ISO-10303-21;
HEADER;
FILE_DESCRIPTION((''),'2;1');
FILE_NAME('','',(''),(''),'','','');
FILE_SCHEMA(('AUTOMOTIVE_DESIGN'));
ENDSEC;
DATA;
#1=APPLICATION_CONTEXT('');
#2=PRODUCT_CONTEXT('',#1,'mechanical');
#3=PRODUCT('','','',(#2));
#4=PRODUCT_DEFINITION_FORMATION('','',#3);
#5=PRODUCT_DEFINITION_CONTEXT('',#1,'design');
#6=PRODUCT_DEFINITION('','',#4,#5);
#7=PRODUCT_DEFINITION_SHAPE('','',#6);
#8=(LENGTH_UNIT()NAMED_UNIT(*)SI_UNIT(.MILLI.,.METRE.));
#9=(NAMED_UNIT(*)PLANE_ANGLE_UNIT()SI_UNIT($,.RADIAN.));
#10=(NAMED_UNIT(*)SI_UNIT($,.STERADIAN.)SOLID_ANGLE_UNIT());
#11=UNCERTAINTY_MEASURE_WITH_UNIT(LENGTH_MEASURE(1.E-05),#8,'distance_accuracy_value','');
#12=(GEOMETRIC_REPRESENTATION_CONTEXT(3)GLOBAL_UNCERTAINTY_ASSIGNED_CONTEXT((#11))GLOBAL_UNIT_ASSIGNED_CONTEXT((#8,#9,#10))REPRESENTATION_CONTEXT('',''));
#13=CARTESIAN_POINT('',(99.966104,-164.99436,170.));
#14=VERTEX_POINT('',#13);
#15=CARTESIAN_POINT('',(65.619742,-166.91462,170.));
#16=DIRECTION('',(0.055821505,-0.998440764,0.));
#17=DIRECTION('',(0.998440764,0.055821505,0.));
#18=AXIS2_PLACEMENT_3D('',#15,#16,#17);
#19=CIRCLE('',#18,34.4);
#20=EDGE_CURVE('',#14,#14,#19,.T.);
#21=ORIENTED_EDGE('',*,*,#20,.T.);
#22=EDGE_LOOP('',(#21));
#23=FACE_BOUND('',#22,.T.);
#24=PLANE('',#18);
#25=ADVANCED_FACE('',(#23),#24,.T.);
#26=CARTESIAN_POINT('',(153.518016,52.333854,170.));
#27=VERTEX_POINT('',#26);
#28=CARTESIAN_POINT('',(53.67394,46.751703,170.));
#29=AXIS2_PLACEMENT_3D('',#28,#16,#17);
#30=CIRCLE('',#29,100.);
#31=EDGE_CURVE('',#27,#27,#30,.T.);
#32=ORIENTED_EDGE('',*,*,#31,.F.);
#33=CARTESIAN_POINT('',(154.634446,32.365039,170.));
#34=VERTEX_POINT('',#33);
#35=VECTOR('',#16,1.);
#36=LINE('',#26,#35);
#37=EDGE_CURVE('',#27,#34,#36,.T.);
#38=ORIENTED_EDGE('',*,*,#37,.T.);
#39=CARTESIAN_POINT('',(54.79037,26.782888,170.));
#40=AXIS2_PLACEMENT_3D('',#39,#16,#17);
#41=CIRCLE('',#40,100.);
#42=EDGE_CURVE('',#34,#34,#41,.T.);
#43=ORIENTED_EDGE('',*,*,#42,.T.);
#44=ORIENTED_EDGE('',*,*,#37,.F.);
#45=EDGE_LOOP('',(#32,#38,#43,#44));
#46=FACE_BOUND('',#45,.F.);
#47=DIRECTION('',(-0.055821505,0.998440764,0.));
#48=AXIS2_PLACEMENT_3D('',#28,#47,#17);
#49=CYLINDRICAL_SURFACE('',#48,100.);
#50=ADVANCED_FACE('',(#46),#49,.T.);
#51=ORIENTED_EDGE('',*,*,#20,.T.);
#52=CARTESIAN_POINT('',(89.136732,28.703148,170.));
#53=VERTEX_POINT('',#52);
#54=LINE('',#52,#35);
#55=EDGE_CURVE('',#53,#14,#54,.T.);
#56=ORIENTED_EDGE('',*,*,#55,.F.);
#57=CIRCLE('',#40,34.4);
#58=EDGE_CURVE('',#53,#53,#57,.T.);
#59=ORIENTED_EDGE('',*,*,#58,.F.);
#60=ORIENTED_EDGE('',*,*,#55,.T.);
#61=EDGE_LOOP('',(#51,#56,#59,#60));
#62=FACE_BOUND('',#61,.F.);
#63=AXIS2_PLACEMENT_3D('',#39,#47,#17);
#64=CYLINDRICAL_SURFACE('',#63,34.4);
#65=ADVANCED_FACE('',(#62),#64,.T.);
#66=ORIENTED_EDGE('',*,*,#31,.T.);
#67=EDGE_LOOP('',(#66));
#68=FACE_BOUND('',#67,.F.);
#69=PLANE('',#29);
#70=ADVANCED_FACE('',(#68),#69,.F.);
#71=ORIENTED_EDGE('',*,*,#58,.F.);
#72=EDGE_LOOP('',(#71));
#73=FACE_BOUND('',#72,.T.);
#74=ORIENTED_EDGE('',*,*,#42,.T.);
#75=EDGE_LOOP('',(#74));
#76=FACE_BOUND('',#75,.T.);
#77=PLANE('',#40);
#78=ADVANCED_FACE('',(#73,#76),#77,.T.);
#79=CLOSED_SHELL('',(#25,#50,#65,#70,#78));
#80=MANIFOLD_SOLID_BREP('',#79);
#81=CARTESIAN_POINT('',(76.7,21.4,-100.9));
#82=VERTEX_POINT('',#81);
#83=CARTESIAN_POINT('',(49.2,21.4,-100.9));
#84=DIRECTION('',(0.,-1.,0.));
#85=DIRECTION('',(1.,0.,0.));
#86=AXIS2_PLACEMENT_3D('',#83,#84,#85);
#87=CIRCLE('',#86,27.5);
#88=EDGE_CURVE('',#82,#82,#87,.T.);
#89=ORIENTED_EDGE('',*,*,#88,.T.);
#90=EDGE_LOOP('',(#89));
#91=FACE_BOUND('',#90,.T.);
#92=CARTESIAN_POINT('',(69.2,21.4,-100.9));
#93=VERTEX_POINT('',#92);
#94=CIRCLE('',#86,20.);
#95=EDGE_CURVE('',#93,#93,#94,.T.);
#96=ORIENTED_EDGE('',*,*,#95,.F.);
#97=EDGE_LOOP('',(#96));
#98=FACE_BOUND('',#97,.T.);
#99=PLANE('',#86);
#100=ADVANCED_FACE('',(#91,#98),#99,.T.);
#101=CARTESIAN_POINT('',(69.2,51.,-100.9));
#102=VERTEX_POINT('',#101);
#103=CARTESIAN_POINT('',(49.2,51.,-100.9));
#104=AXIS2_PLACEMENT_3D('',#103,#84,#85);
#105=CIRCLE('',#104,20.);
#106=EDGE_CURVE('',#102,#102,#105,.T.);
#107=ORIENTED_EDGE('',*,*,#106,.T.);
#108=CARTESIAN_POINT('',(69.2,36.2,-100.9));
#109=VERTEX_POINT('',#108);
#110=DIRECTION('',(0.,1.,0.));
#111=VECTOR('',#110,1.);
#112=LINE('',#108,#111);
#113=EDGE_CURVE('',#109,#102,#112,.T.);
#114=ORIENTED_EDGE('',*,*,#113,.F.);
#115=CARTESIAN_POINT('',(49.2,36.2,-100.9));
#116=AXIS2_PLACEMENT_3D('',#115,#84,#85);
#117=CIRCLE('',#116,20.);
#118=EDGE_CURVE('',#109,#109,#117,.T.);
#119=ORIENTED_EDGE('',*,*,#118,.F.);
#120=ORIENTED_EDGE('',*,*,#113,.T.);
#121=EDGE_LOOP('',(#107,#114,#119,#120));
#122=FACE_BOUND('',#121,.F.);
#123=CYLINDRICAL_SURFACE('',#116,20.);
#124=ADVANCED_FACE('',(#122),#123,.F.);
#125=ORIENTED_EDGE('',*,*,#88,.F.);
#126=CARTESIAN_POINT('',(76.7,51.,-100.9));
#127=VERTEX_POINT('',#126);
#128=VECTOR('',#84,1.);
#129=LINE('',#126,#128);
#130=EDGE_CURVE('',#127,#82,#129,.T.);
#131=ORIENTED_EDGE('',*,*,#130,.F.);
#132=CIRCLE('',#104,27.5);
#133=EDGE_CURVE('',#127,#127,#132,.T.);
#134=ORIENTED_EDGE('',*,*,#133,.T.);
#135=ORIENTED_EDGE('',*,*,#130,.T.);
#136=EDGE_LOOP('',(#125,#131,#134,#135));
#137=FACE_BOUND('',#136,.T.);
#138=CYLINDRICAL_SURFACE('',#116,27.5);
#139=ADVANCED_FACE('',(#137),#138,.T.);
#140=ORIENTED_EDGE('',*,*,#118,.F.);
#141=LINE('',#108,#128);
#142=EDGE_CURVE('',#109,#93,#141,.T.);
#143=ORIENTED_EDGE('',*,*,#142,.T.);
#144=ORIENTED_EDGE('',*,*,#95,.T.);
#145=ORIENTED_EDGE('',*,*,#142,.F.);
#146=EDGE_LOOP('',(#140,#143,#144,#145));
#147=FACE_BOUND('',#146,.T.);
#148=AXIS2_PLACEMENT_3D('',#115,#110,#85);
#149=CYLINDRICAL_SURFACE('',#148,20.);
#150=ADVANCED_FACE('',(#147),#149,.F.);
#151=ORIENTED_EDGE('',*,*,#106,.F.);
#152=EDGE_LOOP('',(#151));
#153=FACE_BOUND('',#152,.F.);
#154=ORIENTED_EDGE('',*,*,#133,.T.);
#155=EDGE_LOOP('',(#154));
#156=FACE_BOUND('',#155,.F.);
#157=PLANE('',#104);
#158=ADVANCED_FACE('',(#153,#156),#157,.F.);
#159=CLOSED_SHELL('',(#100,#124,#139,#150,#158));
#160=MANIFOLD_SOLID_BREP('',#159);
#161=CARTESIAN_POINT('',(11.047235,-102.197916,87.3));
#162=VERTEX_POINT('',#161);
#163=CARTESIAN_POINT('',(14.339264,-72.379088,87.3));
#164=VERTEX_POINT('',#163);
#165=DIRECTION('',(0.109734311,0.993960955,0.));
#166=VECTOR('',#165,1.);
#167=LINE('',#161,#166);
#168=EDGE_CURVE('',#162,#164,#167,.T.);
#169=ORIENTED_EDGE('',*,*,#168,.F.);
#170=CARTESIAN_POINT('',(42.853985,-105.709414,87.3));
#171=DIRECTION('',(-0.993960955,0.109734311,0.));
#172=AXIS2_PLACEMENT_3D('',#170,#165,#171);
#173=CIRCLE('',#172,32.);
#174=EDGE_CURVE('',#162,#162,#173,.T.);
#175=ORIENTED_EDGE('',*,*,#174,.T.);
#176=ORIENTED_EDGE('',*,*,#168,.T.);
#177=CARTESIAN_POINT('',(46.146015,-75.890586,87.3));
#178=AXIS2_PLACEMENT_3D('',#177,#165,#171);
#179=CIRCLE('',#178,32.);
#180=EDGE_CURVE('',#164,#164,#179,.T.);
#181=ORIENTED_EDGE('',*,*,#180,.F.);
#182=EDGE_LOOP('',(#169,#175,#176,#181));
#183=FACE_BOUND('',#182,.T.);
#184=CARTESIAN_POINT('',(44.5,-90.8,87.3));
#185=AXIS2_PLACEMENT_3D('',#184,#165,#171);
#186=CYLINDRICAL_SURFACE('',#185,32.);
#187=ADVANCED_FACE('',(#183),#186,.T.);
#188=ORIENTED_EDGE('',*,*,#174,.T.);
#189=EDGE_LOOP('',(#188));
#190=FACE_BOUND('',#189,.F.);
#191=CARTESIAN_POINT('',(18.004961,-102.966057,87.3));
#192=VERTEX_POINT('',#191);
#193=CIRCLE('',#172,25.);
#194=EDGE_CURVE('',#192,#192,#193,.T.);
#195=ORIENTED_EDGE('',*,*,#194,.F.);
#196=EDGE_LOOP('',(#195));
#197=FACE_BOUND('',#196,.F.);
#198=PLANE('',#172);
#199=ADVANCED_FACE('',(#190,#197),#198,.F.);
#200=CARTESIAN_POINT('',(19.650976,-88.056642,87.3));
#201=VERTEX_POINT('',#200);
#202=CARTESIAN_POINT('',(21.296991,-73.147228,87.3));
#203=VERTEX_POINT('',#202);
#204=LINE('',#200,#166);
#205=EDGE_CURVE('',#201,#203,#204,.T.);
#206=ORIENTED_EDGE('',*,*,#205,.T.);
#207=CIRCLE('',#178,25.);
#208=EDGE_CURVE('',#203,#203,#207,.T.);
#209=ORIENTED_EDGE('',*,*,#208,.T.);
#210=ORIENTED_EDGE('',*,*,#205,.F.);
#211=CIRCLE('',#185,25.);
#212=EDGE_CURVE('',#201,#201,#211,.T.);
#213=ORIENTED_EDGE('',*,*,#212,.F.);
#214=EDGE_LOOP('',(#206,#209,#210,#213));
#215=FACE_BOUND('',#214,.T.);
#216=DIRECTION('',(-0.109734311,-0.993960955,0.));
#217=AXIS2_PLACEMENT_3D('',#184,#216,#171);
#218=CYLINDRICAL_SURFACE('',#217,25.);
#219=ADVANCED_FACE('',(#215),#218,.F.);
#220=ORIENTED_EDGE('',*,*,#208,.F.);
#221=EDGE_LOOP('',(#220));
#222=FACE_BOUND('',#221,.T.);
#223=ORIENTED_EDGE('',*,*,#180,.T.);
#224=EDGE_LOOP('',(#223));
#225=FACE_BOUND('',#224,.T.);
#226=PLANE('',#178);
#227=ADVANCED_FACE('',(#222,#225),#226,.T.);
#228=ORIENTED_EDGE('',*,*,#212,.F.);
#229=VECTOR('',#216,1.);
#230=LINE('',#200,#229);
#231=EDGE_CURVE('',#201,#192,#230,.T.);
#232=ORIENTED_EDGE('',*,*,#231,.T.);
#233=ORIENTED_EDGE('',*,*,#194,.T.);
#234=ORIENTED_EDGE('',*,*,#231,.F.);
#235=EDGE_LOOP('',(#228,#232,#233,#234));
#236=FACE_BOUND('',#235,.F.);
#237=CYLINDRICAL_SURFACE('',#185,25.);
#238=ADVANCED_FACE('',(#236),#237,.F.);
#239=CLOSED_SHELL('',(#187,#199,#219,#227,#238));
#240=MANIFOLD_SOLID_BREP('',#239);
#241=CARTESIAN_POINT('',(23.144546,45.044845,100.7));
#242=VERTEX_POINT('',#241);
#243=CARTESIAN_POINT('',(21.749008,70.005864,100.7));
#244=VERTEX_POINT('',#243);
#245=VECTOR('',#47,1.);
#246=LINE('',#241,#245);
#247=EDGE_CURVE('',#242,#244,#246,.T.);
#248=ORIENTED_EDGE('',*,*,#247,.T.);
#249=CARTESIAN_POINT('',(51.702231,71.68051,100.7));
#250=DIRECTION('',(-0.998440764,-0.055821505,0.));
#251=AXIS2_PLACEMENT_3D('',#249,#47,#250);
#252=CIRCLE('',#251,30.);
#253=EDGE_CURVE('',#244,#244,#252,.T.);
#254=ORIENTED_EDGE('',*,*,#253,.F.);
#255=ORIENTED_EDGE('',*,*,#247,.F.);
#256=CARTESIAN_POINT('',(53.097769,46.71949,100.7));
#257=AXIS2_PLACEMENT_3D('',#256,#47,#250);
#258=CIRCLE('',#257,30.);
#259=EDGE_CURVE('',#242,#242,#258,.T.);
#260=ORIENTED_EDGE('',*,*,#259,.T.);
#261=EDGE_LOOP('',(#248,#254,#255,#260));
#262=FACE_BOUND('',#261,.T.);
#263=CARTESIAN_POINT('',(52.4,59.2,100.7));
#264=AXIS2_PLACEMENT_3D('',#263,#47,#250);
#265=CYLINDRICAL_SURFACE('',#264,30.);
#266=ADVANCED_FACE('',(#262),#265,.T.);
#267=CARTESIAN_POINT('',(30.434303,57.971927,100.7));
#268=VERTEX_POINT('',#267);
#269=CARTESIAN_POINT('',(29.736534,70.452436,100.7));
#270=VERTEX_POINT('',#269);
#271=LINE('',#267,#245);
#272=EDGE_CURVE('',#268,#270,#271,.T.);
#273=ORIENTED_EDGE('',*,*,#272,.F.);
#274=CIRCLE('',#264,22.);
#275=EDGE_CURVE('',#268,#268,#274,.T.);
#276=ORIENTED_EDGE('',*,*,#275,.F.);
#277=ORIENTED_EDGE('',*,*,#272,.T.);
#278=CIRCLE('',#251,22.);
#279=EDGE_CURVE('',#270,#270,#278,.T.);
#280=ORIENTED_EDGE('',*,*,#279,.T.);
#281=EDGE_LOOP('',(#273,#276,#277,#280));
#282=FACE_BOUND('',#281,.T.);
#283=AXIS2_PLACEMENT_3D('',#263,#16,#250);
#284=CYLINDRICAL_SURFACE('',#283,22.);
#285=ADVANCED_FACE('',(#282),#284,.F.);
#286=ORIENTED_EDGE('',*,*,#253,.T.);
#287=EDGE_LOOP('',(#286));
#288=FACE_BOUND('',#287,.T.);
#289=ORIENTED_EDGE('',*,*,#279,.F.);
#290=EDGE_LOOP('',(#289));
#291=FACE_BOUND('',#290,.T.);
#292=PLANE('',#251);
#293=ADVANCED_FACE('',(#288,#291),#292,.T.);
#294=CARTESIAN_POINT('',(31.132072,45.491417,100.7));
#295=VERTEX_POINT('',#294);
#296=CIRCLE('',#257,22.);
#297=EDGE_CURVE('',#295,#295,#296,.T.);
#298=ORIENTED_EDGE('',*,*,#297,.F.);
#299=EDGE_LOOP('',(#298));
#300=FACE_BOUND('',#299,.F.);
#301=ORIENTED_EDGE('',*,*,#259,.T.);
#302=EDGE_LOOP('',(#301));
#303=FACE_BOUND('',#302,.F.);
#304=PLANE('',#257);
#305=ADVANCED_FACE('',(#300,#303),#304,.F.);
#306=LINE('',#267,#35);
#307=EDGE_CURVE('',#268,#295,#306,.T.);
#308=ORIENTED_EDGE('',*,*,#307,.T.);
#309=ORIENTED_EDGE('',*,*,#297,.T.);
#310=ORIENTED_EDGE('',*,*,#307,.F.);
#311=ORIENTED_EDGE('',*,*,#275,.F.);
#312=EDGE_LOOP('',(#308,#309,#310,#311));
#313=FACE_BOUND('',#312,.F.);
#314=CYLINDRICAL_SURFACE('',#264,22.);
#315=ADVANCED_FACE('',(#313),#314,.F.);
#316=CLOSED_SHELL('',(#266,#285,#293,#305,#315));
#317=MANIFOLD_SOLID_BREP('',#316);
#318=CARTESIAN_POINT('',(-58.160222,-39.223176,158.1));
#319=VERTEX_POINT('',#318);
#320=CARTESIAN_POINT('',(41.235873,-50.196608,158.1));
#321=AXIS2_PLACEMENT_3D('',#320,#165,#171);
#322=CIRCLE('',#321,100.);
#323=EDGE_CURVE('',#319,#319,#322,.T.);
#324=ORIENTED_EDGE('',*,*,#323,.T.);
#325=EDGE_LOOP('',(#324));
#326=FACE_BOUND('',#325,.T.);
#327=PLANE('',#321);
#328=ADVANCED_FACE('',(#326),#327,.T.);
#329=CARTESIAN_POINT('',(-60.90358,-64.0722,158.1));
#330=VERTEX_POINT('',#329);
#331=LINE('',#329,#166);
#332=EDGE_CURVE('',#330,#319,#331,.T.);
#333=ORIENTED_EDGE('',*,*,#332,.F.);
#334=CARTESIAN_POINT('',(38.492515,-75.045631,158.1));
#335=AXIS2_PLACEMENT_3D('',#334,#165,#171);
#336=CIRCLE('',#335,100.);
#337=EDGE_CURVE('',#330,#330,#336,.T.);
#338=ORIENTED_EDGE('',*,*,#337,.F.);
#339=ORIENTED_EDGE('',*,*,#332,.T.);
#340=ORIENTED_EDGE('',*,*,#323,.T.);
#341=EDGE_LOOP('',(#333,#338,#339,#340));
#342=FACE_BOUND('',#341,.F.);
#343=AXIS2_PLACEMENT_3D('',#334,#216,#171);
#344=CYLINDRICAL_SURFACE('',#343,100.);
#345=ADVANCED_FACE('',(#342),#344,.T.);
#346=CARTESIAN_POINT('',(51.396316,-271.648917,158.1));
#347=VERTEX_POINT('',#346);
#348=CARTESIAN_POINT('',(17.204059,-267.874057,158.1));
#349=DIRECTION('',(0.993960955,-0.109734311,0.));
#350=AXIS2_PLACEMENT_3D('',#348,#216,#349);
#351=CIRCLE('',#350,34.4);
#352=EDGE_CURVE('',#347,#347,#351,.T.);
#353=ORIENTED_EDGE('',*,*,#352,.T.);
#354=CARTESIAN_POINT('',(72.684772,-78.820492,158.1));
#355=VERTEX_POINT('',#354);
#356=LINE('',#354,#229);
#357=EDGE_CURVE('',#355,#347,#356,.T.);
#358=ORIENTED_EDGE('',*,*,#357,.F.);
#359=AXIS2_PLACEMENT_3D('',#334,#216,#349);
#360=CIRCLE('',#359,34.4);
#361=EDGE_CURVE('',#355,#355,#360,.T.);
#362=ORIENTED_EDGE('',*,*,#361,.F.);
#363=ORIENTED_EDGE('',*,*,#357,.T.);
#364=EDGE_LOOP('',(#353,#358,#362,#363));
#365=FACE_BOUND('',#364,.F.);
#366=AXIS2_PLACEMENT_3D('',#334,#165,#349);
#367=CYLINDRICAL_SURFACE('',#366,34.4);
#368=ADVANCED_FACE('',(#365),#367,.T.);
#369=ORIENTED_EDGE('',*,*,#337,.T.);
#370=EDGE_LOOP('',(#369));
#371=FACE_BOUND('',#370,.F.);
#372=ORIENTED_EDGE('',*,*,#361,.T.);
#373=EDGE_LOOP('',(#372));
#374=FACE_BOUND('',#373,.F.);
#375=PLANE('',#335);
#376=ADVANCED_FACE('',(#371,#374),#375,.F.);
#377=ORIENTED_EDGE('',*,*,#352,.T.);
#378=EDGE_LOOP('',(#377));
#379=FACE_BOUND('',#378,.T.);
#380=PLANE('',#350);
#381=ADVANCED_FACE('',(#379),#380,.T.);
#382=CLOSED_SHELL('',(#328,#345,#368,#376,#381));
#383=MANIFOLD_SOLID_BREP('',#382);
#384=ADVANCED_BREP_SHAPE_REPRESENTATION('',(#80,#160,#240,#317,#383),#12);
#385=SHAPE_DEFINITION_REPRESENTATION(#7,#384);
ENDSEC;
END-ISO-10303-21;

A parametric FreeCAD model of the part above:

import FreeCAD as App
import Part
import Sketcher
Q = App.Units.Quantity

doc = App.newDocument("Part")
body = doc.addObject("PartDesign::Body", "Body")

# Sketch on XZ plane
sketch1 = body.newObject("Sketcher::SketchObject", "Sketch")
sketch1.AttachmentSupport = (doc.getObject("XZ_Plane"), [""])
sketch1.MapMode = "FlatFace"
sketch1.AttachmentOffset = App.Placement(App.Vector(0, 0, -36.2), App.Rotation())
sketch1.addGeometry(Part.Circle(App.Vector(49, -101, 0), App.Vector(0, 0, 1), 28), False)
sketch1.addGeometry(Part.Circle(App.Vector(49, -101, 0), App.Vector(0, 0, 1), 20), False)
sketch1.addConstraint(Sketcher.Constraint("Coincident", 1, 3, 0, 3))
sketch1.addConstraint(Sketcher.Constraint("Diameter", 0, Q("55 mm")))
sketch1.addConstraint(Sketcher.Constraint("Diameter", 1, Q("40 mm")))
sketch1.addConstraint(Sketcher.Constraint("DistanceX", -1, 1, 0, 3, Q("49.2 mm")))
sketch1.addConstraint(Sketcher.Constraint("DistanceY", 0, 3, -1, 1, Q("100.9 mm")))
pad1 = body.newObject("PartDesign::Pad", "Pad")
pad1.Profile = sketch1
pad1.Type = "TwoLengths"
pad1.Length = 14.8
pad1.Length2 = 14.8
body2 = doc.addObject("PartDesign::Body", "Body001")

# Sketch on an angled plane
sketch2 = body2.newObject("Sketcher::SketchObject", "Sketch001")
sketch2.Placement = App.Placement(App.Vector(-3.1362, 56.095044, 0), App.Rotation(App.Vector(-0.998440764, -0.055821505, 0), App.Vector(0, 0, 1), App.Vector(-0.055821505, 0.998440764, 0), "ZXY"))
sketch2.addGeometry(Part.Circle(App.Vector(-56, 101, 0), App.Vector(0, 0, 1), 30), False)
sketch2.addGeometry(Part.Circle(App.Vector(-56, 101, 0), App.Vector(0, 0, 1), 22), False)
sketch2.addConstraint(Sketcher.Constraint("Coincident", 1, 3, 0, 3))
sketch2.addConstraint(Sketcher.Constraint("Diameter", 0, Q("60 mm")))
sketch2.addConstraint(Sketcher.Constraint("Diameter", 1, Q("44 mm")))
sketch2.addConstraint(Sketcher.Constraint("DistanceY", -1, 1, 0, 3, Q("100.7 mm")))
sketch2.addConstraint(Sketcher.Constraint("DistanceX", 0, 3, -1, 1, Q("55.622929 mm")))
pad2 = body2.newObject("PartDesign::Pad", "Pad001")
pad2.Profile = sketch2
pad2.Type = "TwoLengths"
pad2.Length = 12.5
pad2.Length2 = 12.5
body3 = doc.addObject("PartDesign::Body", "Body002")

# Sketch on an angled plane
sketch3 = body3.newObject("Sketcher::SketchObject", "Sketch002")
sketch3.Placement = App.Placement(App.Vector(-9.367851, -84.852934, 0), App.Rotation(App.Vector(-0.993960955, 0.109734311, 0), App.Vector(0, 0, 0.999999999), App.Vector(0.109734311, 0.993960955, 0), "ZXY"))
sketch3.addGeometry(Part.Circle(App.Vector(-54, 87, 0), App.Vector(0, 0, 1), 32), False)
sketch3.addGeometry(Part.Circle(App.Vector(-54, 87, 0), App.Vector(0, 0, 1), 25), False)
sketch3.addConstraint(Sketcher.Constraint("Coincident", 1, 3, 0, 3))
sketch3.addConstraint(Sketcher.Constraint("Diameter", 0, Q("64 mm")))
sketch3.addConstraint(Sketcher.Constraint("Diameter", 1, Q("50 mm")))
sketch3.addConstraint(Sketcher.Constraint("DistanceY", -1, 1, 0, 3, Q("87.3 mm")))
sketch3.addConstraint(Sketcher.Constraint("DistanceX", 0, 3, -1, 1, Q("54.195138 mm")))
pad3 = body3.newObject("PartDesign::Pad", "Pad002")
pad3.Profile = sketch3
pad3.Type = "TwoLengths"
pad3.Length = 15
pad3.Length2 = 15
body4 = doc.addObject("PartDesign::Body", "Body003")

# Sketch on an angled plane
sketch4 = body4.newObject("Sketcher::SketchObject", "Sketch003")
sketch4.Placement = App.Placement(App.Vector(-2.438431, 43.614535, 0), App.Rotation(App.Vector(0.998440764, 0.055821505, 0), App.Vector(0, 0, 1), App.Vector(0.055821505, -0.998440764, 0), "ZXY"))
sketch4.addGeometry(Part.Circle(App.Vector(56, 170, 0), App.Vector(0, 0, 1), 100), False)
sketch4.addConstraint(Sketcher.Constraint("Diameter", 0, Q("200 mm")))
sketch4.addConstraint(Sketcher.Constraint("DistanceY", -1, 1, 0, 3, Q("170 mm")))
sketch4.addConstraint(Sketcher.Constraint("DistanceX", -1, 1, 0, 3, Q("56.2 mm")))
pad4 = body4.newObject("PartDesign::Pad", "Pad003")
pad4.Profile = sketch4
pad4.Length = 20

# Sketch on an angled plane
sketch5 = body4.newObject("Sketcher::SketchObject", "Sketch004")
sketch5.Placement = App.Placement(App.Vector(-1.322001, 23.64572, 0), App.Rotation(App.Vector(0.998440764, 0.055821505, 0), App.Vector(0, 0, 1), App.Vector(0.055821505, -0.998440764, 0), "ZXY"))
sketch5.addGeometry(Part.Circle(App.Vector(56, 170, 0), App.Vector(0, 0, 1), 34), False)
sketch5.addConstraint(Sketcher.Constraint("Diameter", 0, Q("68.8 mm")))
sketch5.addConstraint(Sketcher.Constraint("DistanceY", -1, 1, 0, 3, Q("170 mm")))
sketch5.addConstraint(Sketcher.Constraint("DistanceX", -1, 1, 0, 3, Q("56.2 mm")))
pad5 = body4.newObject("PartDesign::Pad", "Pad004")
pad5.Profile = sketch5
pad5.Length = 194
body5 = doc.addObject("PartDesign::Body", "Body004")

# Sketch on an angled plane
sketch6 = body5.newObject("Sketcher::SketchObject", "Sketch005")
sketch6.Placement = App.Placement(App.Vector(-7.721836, -69.94352, 0), App.Rotation(App.Vector(-0.993960955, 0.109734311, 0), App.Vector(0, 0, 0.999999999), App.Vector(0.109734311, 0.993960955, 0), "ZXY"))
sketch6.addGeometry(Part.Circle(App.Vector(-46, 158, 0), App.Vector(0, 0, 1), 100), False)
sketch6.addConstraint(Sketcher.Constraint("Diameter", 0, Q("200 mm")))
sketch6.addConstraint(Sketcher.Constraint("DistanceY", -1, 1, 0, 3, Q("158.1 mm")))
sketch6.addConstraint(Sketcher.Constraint("DistanceX", 0, 3, -1, 1, Q("46.495138 mm")))
pad6 = body5.newObject("PartDesign::Pad", "Pad005")
pad6.Profile = sketch6
pad6.Length = 25

# Sketch on an angled plane
sketch7 = body5.newObject("Sketcher::SketchObject", "Sketch006")
sketch7.Placement = App.Placement(App.Vector(-7.721836, -69.94352, 0), App.Rotation(App.Vector(0.993960955, -0.109734311, 0), App.Vector(0, 0, 0.999999999), App.Vector(-0.109734311, -0.993960955, 0), "ZXY"))
sketch7.addGeometry(Part.Circle(App.Vector(46, 158, 0), App.Vector(0, 0, 1), 34), False)
sketch7.addConstraint(Sketcher.Constraint("Diameter", 0, Q("68.8 mm")))
sketch7.addConstraint(Sketcher.Constraint("DistanceY", -1, 1, 0, 3, Q("158.1 mm")))
sketch7.addConstraint(Sketcher.Constraint("DistanceX", -1, 1, 0, 3, Q("46.495138 mm")))
pad7 = body5.newObject("PartDesign::Pad", "Pad006")
pad7.Profile = sketch7
pad7.Length = 194

doc.recompute()
